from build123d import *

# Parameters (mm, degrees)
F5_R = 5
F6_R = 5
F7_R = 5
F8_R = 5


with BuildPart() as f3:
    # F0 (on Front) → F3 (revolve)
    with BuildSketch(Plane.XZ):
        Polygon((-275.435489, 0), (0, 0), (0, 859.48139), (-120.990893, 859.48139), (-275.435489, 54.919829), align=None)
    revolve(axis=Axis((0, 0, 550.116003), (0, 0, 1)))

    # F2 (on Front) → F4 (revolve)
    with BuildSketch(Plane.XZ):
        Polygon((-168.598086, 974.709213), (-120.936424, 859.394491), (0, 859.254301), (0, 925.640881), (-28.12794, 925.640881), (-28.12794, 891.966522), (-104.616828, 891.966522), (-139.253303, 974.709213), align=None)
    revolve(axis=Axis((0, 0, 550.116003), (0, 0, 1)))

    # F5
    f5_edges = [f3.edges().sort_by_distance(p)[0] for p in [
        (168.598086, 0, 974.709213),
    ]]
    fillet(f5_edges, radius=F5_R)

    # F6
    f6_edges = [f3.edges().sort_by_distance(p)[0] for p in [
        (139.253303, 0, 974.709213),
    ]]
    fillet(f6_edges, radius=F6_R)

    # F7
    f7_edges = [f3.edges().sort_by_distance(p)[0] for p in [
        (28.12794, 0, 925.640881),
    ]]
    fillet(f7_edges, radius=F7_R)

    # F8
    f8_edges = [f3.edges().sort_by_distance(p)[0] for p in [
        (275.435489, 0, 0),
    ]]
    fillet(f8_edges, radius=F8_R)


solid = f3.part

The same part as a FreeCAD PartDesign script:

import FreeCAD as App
import Part
import Sketcher

V = App.Vector


def edges_at(feature, points):
    """Names of the edges that pass closest to the given points."""
    edges = feature.Shape.Edges
    near = lambda p: min(range(len(edges)), key=lambda i: edges[i].distToShape(Part.Vertex(*p))[0])
    return sorted({f"Edge{near(p) + 1}" for p in points})

doc = App.newDocument("Part")
body = doc.addObject("PartDesign::Body", "Body")

# Sketch on XZ plane
sketch1 = body.newObject("Sketcher::SketchObject", "Sketch")
sketch1.AttachmentSupport = (doc.getObject("XZ_Plane"), [""])
sketch1.MapMode = "FlatFace"
sketch1.addGeometry([
    Part.LineSegment(V(-275, 0, 0), V(0, 0, 0)),  # 0
    Part.LineSegment(V(0, 0, 0), V(0, 859, 0)),  # 1
    Part.LineSegment(V(0, 859, 0), V(-121, 859, 0)),  # 2
    Part.LineSegment(V(-121, 859, 0), V(-275, 55, 0)),  # 3
    Part.LineSegment(V(-275, 55, 0), V(-275, 0, 0)),  # 4
], False)
sketch1.addConstraint([
    Sketcher.Constraint("Coincident", 0, 2, 1, 1),
    Sketcher.Constraint("Coincident", 1, 2, 2, 1),
    Sketcher.Constraint("Coincident", 2, 2, 3, 1),
    Sketcher.Constraint("Coincident", 3, 2, 4, 1),
    Sketcher.Constraint("Coincident", 4, 2, 0, 1),
    Sketcher.Constraint("Horizontal", 0),
    Sketcher.Constraint("Vertical", 1),
    Sketcher.Constraint("Horizontal", 2),
    Sketcher.Constraint("Vertical", 4),
    Sketcher.Constraint("Coincident", 0, 2, -1, 1),
    Sketcher.Constraint("DistanceX", 0, 1, 0, 2, 275.435489),
    Sketcher.Constraint("DistanceY", 1, 1, 1, 2, 859.48139),
    Sketcher.Constraint("DistanceY", 4, 2, 4, 1, 54.919829),
    Sketcher.Constraint("DistanceX", 2, 2, 2, 1, 120.990893),
])
revolution = body.newObject("PartDesign::Revolution", "Revolution")
revolution.Profile = sketch1
revolution.ReferenceAxis = (sketch1, ["V_Axis"])
revolution.Angle = 360

# Sketch on XZ plane
sketch2 = body.newObject("Sketcher::SketchObject", "Sketch001")
sketch2.AttachmentSupport = (doc.getObject("XZ_Plane"), [""])
sketch2.MapMode = "FlatFace"
sketch2.addGeometry([
    Part.LineSegment(V(-169, 975, 0), V(-121, 859, 0)),  # 0
    Part.LineSegment(V(-121, 859, 0), V(0, 859, 0)),  # 1
    Part.LineSegment(V(0, 859, 0), V(0, 926, 0)),  # 2
    Part.LineSegment(V(0, 926, 0), V(-28, 926, 0)),  # 3
    Part.LineSegment(V(-28, 926, 0), V(-28, 892, 0)),  # 4
    Part.LineSegment(V(-28, 892, 0), V(-105, 892, 0)),  # 5
    Part.LineSegment(V(-105, 892, 0), V(-139, 975, 0)),  # 6
    Part.LineSegment(V(-139, 975, 0), V(-169, 975, 0)),  # 7
], False)
sketch2.addConstraint([
    Sketcher.Constraint("Coincident", 0, 2, 1, 1),
    Sketcher.Constraint("Coincident", 1, 2, 2, 1),
    Sketcher.Constraint("Coincident", 2, 2, 3, 1),
    Sketcher.Constraint("Coincident", 3, 2, 4, 1),
    Sketcher.Constraint("Coincident", 4, 2, 5, 1),
    Sketcher.Constraint("Coincident", 5, 2, 6, 1),
    Sketcher.Constraint("Coincident", 6, 2, 7, 1),
    Sketcher.Constraint("Coincident", 7, 2, 0, 1),
    Sketcher.Constraint("Vertical", 2),
    Sketcher.Constraint("Horizontal", 3),
    Sketcher.Constraint("Vertical", 4),
    Sketcher.Constraint("Horizontal", 5),
    Sketcher.Constraint("Horizontal", 7),
    Sketcher.Constraint("PointOnObject", 1, 2, -2),
    Sketcher.Constraint("DistanceX", 3, 2, 3, 1, 28.12794),
    Sketcher.Constraint("DistanceX", 5, 2, 5, 1, 76.488888),
    Sketcher.Constraint("DistanceY", 2, 1, 2, 2, 66.38658),
    Sketcher.Constraint("DistanceY", 4, 2, 4, 1, 33.674359),
    Sketcher.Constraint("DistanceY", -1, 1, 1, 2, 859.254301),
    Sketcher.Constraint("Distance", 6, 89.699712),
    Sketcher.Constraint("DistanceX", 7, 2, 7, 1, 29.344783),
    Sketcher.Constraint("DistanceY", -1, 1, 0, 2, 859.394491),
    Sketcher.Constraint("DistanceY", 5, 2, 6, 2, 82.742691),
    Sketcher.Constraint("DistanceX", 6, 2, 0, 2, 18.316879),
])
revolution2 = body.newObject("PartDesign::Revolution", "Revolution001")
revolution2.Profile = sketch2
revolution2.ReferenceAxis = (sketch2, ["V_Axis"])
revolution2.Angle = 360
doc.recompute()

fillet = body.newObject("PartDesign::Fillet", "Fillet")
fillet.Base = (revolution2, edges_at(revolution2, [(168.598, 0, 974.709)]))
fillet.Radius = 5
doc.recompute()

fillet2 = body.newObject("PartDesign::Fillet", "Fillet001")
fillet2.Base = (fillet, edges_at(fillet, [(139.253, 0, 974.709)]))
fillet2.Radius = 5
doc.recompute()

fillet3 = body.newObject("PartDesign::Fillet", "Fillet002")
fillet3.Base = (fillet2, edges_at(fillet2, [(28.128, 0, 925.641)]))
fillet3.Radius = 5
doc.recompute()

fillet4 = body.newObject("PartDesign::Fillet", "Fillet003")
fillet4.Base = (fillet3, edges_at(fillet3, [(275.435, 0, 0)]))
fillet4.Radius = 5

doc.recompute()
